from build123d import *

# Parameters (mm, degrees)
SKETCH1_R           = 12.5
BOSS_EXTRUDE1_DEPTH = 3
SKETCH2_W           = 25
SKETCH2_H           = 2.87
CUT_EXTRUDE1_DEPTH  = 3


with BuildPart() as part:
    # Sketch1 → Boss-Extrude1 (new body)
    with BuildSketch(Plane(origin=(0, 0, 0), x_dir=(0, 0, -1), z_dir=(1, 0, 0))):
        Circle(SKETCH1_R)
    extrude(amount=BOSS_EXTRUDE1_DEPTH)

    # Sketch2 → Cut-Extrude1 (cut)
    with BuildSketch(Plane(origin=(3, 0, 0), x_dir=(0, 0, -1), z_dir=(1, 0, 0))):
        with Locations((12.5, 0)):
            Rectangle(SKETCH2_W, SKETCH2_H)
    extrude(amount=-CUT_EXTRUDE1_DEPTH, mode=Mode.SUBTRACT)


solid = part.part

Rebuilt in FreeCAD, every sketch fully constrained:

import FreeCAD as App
import Part
import Sketcher

V = App.Vector


def add_polygon(sketch, points):
    """Adds a closed chain of lines whose ends are joined by coincident constraints."""
    first, n = sketch.GeometryCount, len(points)
    for a, b in zip(points, points[1:] + points[:1]):
        sketch.addGeometry(Part.LineSegment(App.Vector(*a, 0), App.Vector(*b, 0)), False)
    for i in range(n):
        sketch.addConstraint(Sketcher.Constraint("Coincident", first + i, 2, first + (i + 1) % n, 1))

doc = App.newDocument("Part")
body = doc.addObject("PartDesign::Body", "Body")

# Sketch on YZ plane
sketch1 = doc.addObject("Sketcher::SketchObject", "Sketch")
body.addObject(sketch1)
sketch1.AttachmentSupport = (doc.YZ_Plane, [""])
sketch1.MapMode = "FlatFace"
sketch1.addGeometry(Part.Circle(V(0, 0, 0), V(0, 0, 1), 12), False)
sketch1.addConstraint([
    Sketcher.Constraint("Coincident", 0, 3, -1, 1),
    Sketcher.Constraint("Diameter", 0, 25.0),
])
pad1 = doc.addObject("PartDesign::Pad", "Pad")
body.addObject(pad1)
pad1.Profile = sketch1
pad1.Length = 3

# Sketch on YZ plane
sketch2 = doc.addObject("Sketcher::SketchObject", "Sketch001")
body.addObject(sketch2)
sketch2.AttachmentSupport = (doc.YZ_Plane, [""])
sketch2.MapMode = "FlatFace"
sketch2.AttachmentOffset = App.Placement(V(0, 0, 3), App.Rotation())
add_polygon(sketch2, [(1.4, 0), (-1.4, 0), (-1.4, -25), (1.4, -25)])  # lines 0-3
sketch2.addConstraint([
    Sketcher.Constraint("Horizontal", 0),
    Sketcher.Constraint("Vertical", 1),
    Sketcher.Constraint("Horizontal", 2),
    Sketcher.Constraint("Vertical", 3),
    Sketcher.Constraint("Symmetric", 0, 2, 3, 2, -1, 1),
    Sketcher.Constraint("DistanceY", 1, 2, 1, 1, 25.0),
    Sketcher.Constraint("DistanceX", 0, 2, 0, 1, 2.87),
])
pocket1 = doc.addObject("PartDesign::Pocket", "Pocket")
body.addObject(pocket1)
pocket1.Profile = sketch2
pocket1.Length = 3

doc.recompute()
